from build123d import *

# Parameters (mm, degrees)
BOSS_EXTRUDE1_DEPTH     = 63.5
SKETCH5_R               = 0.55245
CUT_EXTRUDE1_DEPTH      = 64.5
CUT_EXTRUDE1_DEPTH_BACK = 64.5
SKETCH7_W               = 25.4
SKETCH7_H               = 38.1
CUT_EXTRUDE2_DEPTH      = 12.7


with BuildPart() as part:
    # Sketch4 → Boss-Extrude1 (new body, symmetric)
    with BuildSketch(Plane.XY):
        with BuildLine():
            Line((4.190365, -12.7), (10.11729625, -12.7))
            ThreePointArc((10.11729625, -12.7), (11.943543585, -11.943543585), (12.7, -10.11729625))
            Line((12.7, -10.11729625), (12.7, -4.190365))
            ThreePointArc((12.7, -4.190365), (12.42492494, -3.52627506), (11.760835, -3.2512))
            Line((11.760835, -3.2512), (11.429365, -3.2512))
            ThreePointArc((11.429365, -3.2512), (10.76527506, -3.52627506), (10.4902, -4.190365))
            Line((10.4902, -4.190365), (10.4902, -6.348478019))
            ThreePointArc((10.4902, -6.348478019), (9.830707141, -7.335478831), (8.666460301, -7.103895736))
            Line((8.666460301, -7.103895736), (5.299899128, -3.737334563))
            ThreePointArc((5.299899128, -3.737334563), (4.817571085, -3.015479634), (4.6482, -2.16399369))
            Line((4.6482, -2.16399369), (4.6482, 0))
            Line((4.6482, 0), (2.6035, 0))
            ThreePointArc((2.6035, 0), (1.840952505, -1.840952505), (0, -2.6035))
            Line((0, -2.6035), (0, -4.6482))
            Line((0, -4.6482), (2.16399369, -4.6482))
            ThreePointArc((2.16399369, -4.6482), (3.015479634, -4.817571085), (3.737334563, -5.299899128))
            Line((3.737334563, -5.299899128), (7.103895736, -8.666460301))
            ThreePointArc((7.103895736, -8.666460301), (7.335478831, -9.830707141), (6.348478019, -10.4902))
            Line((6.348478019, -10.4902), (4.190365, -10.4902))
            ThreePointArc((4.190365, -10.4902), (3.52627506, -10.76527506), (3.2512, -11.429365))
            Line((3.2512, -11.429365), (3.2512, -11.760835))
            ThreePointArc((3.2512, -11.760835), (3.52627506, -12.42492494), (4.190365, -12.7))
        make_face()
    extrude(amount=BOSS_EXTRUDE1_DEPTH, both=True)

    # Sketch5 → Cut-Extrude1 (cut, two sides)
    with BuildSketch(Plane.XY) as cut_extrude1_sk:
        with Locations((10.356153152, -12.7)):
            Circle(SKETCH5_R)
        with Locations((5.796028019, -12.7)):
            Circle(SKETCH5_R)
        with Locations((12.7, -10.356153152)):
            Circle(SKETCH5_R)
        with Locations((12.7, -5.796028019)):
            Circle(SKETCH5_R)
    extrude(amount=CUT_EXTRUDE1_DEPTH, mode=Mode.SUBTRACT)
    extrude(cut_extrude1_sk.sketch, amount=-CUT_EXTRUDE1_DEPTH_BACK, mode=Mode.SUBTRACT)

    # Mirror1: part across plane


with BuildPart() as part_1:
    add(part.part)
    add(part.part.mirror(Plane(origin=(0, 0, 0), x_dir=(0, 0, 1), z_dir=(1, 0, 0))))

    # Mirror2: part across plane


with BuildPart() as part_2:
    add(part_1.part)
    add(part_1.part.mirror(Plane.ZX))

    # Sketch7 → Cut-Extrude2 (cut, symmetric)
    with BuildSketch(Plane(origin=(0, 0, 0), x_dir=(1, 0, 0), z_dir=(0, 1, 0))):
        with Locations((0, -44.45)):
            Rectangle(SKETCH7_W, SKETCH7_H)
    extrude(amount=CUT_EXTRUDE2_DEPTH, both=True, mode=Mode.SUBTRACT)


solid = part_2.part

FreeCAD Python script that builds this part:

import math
import FreeCAD as App
import Part
import Sketcher
Q = App.Units.Quantity

doc = App.newDocument("Part")
body = doc.addObject("PartDesign::Body", "Body")

sketch1 = doc.addObject("Sketcher::SketchObject", "Sketch")
body.addObject(sketch1)
sketch1.AttachmentSupport = (doc.XY_Plane, [""])
sketch1.MapMode = "FlatFace"
sketch1.addGeometry([
    Part.LineSegment(App.Vector(4.19, -12.7, 0), App.Vector(10.12, -12.7, 0)),
    Part.ArcOfCircle(Part.Circle(App.Vector(10.12, -10.12, 0), App.Vector(0, 0, 1), 2.58), math.radians(-90), math.radians(0)),
    Part.LineSegment(App.Vector(12.7, -10.12, 0), App.Vector(12.7, -4.19, 0)),
    Part.ArcOfCircle(Part.Circle(App.Vector(11.76, -4.19, 0), App.Vector(0, 0, 1), 0.94), math.radians(0), math.radians(90)),
    Part.LineSegment(App.Vector(11.76, -3.25, 0), App.Vector(11.43, -3.25, 0)),
    Part.ArcOfCircle(Part.Circle(App.Vector(11.43, -4.19, 0), App.Vector(0, 0, 1), 0.94), math.radians(90), math.radians(180)),
    Part.LineSegment(App.Vector(10.49, -4.19, 0), App.Vector(10.49, -6.35, 0)),
    Part.ArcOfCircle(Part.Circle(App.Vector(9.42, -6.35, 0), App.Vector(0, 0, 1), 1.07), math.radians(-135), math.radians(0)),
    Part.LineSegment(App.Vector(8.67, -7.1, 0), App.Vector(5.3, -3.74, 0)),
    Part.ArcOfCircle(Part.Circle(App.Vector(6.87, -2.16, 0), App.Vector(0, 0, 1), 2.23), math.radians(-180), math.radians(-135)),
    Part.LineSegment(App.Vector(4.65, -2.16, 0), App.Vector(4.65, 0, 0)),
    Part.LineSegment(App.Vector(4.65, 0, 0), App.Vector(2.6, 0, 0)),
    Part.ArcOfCircle(Part.Circle(App.Vector(0, 0, 0), App.Vector(0, 0, 1), 2.6), math.radians(-90), math.radians(0)),
    Part.LineSegment(App.Vector(0, -2.6, 0), App.Vector(0, -4.65, 0)),
    Part.LineSegment(App.Vector(0, -4.65, 0), App.Vector(2.16, -4.65, 0)),
    Part.ArcOfCircle(Part.Circle(App.Vector(2.16, -6.87, 0), App.Vector(0, 0, 1), 2.23), math.radians(45), math.radians(90)),
    Part.LineSegment(App.Vector(3.74, -5.3, 0), App.Vector(7.1, -8.67, 0)),
    Part.ArcOfCircle(Part.Circle(App.Vector(6.35, -9.42, 0), App.Vector(0, 0, 1), 1.07), math.radians(-90), math.radians(45)),
    Part.LineSegment(App.Vector(6.35, -10.49, 0), App.Vector(4.19, -10.49, 0)),
    Part.ArcOfCircle(Part.Circle(App.Vector(4.19, -11.43, 0), App.Vector(0, 0, 1), 0.94), math.radians(90), math.radians(180)),
    Part.LineSegment(App.Vector(3.25, -11.43, 0), App.Vector(3.25, -11.76, 0)),
    Part.ArcOfCircle(Part.Circle(App.Vector(4.19, -11.76, 0), App.Vector(0, 0, 1), 0.94), math.radians(-180), math.radians(-90)),
], False)
sketch1.addConstraint([
    Sketcher.Constraint("Tangent", 0, 2, 1, 1),
    Sketcher.Constraint("Tangent", 1, 2, 2, 1),
    Sketcher.Constraint("Tangent", 2, 2, 3, 1),
    Sketcher.Constraint("Tangent", 3, 2, 4, 1),
    Sketcher.Constraint("Tangent", 4, 2, 5, 1),
    Sketcher.Constraint("Tangent", 5, 2, 6, 1),
    Sketcher.Constraint("Tangent", 6, 2, 7, 2),
    Sketcher.Constraint("Tangent", 7, 1, 8, 1),
    Sketcher.Constraint("Tangent", 8, 2, 9, 2),
    Sketcher.Constraint("Tangent", 9, 1, 10, 1),
    Sketcher.Constraint("Coincident", 10, 2, 11, 1),
    Sketcher.Constraint("Coincident", 11, 2, 12, 2),
    Sketcher.Constraint("Coincident", 12, 1, 13, 1),
    Sketcher.Constraint("Coincident", 13, 2, 14, 1),
    Sketcher.Constraint("Tangent", 14, 2, 15, 2),
    Sketcher.Constraint("Tangent", 15, 1, 16, 1),
    Sketcher.Constraint("Tangent", 16, 2, 17, 2),
    Sketcher.Constraint("Tangent", 17, 1, 18, 1),
    Sketcher.Constraint("Tangent", 18, 2, 19, 1),
    Sketcher.Constraint("Tangent", 19, 2, 20, 1),
    Sketcher.Constraint("Tangent", 20, 2, 21, 1),
    Sketcher.Constraint("Tangent", 21, 2, 0, 1),
    Sketcher.Constraint("Horizontal", 0),
    Sketcher.Constraint("Vertical", 2),
    Sketcher.Constraint("Horizontal", 4),
    Sketcher.Constraint("Vertical", 6),
    Sketcher.Constraint("Vertical", 10),
    Sketcher.Constraint("Horizontal", 11),
    Sketcher.Constraint("Vertical", 13),
    Sketcher.Constraint("Horizontal", 14),
    Sketcher.Constraint("Horizontal", 18),
    Sketcher.Constraint("Vertical", 20),
    Sketcher.Constraint("Coincident", 12, 3, -1, 1),
    Sketcher.Constraint("Equal", 3, 5),
    Sketcher.Constraint("Equal", 9, 15),
    Sketcher.Constraint("Equal", 7, 17),
    Sketcher.Constraint("Equal", 5, 19),
    Sketcher.Constraint("Equal", 19, 21),
    Sketcher.Constraint("PointOnObject", 10, 2, -1),
    Sketcher.Constraint("PointOnObject", 12, 1, -2),
    Sketcher.Constraint("Parallel", 8, 16),
    Sketcher.Constraint("Equal", 0, 2),
    Sketcher.Constraint("Equal", 18, 6),
    Sketcher.Constraint("Equal", 14, 10),
    Sketcher.Constraint("Equal", 11, 13),
    Sketcher.Constraint("Equal", 4, 20),
    Sketcher.Constraint("Equal", 8, 16),
    Sketcher.Constraint("DistanceY", 0, 2, -1, 1, Q("0.5 in")),
    Sketcher.Constraint("Radius", 9, Q("0.0876 in")),
    Sketcher.Constraint("Radius", 12, Q("0.1025 in")),
    Sketcher.Constraint("DistanceX", 9, 1, 5, 2, Q("0.23 in")),
    Sketcher.Constraint("DistanceX", 11, 2, 11, 1, Q("0.0805 in")),
    Sketcher.Constraint("DistanceY", 3, 2, -1, 1, Q("0.128 in")),
    Sketcher.Constraint("Radius", 7, Q("1.068322 mm")),
    Sketcher.Constraint("DistanceX", 17, 3, 7, 3, Q("0.121 in")),
    Sketcher.Constraint("Radius", 1, Q("2.582704 mm")),
    Sketcher.Constraint("Radius", 3, Q("0.939165 mm")),
])
pad1 = doc.addObject("PartDesign::Pad", "Pad")
body.addObject(pad1)
pad1.Profile = sketch1
pad1.Length = Q("5 in")
pad1.Midplane = True

sketch2 = doc.addObject("Sketcher::SketchObject", "Sketch001")
body.addObject(sketch2)
sketch2.AttachmentSupport = (doc.XY_Plane, [""])
sketch2.MapMode = "FlatFace"
sketch2.addGeometry([
    Part.Circle(App.Vector(10.4, -12.7, 0), App.Vector(0, 0, 1), 0.6),
    Part.Circle(App.Vector(5.8, -12.7, 0), App.Vector(0, 0, 1), 0.6),
    Part.Circle(App.Vector(12.7, -10.4, 0), App.Vector(0, 0, 1), 0.6),
    Part.Circle(App.Vector(12.7, -5.8, 0), App.Vector(0, 0, 1), 0.6),
], False)
sketch2.addConstraint([
    Sketcher.Constraint("Equal", 0, 1),
    Sketcher.Constraint("Equal", 1, 2),
    Sketcher.Constraint("Equal", 2, 3),
    Sketcher.Constraint("Horizontal", 0, 3, 1, 3),
    Sketcher.Constraint("Vertical", 2, 3, 3, 3),
    Sketcher.Constraint("Diameter", 0, Q("0.0435 in")),
    Sketcher.Constraint("DistanceY", 0, 3, -1, 1, Q("0.5 in")),
    Sketcher.Constraint("DistanceX", -1, 1, 2, 3, Q("0.5 in")),
    Sketcher.Constraint("DistanceX", -1, 1, 1, 3, Q("5.796028 mm")),
    Sketcher.Constraint("DistanceY", 3, 3, -1, 1, Q("5.796028 mm")),
    Sketcher.Constraint("DistanceX", -1, 1, 0, 3, Q("10.356153 mm")),
    Sketcher.Constraint("DistanceY", 2, 3, -1, 1, Q("10.356153 mm")),
])
pocket1 = doc.addObject("PartDesign::Pocket", "Pocket")
body.addObject(pocket1)
pocket1.Profile = sketch2
pocket1.Type = "ThroughAll"
pocket1.Midplane = True
body2 = doc.addObject("PartDesign::Body", "Body001")
doc.recompute()

body2.BaseFeature = body
doc.recompute()

mirroring = doc.addObject("Part::Mirroring", "Mirroring")
mirroring.Source = body
mirroring.Base = App.Vector(0, 0, 0)
mirroring.Normal = App.Vector(1, 0, 0)
body3 = doc.addObject("PartDesign::Body", "Body002")
body3.BaseFeature = mirroring
boolean = doc.addObject("PartDesign::Boolean", "Boolean")
body2.addObject(boolean)
boolean.Type = "Fuse"
boolean.addObjects([body3])
doc.recompute()
body4 = doc.addObject("PartDesign::Body", "Body003")
doc.recompute()

body4.BaseFeature = body2
doc.recompute()

mirroring2 = doc.addObject("Part::Mirroring", "Mirroring001")
mirroring2.Source = body2
mirroring2.Base = App.Vector(0, 0, 0)
mirroring2.Normal = App.Vector(0, 1, 0)
body5 = doc.addObject("PartDesign::Body", "Body004")
body5.BaseFeature = mirroring2
boolean2 = doc.addObject("PartDesign::Boolean", "Boolean001")
body4.addObject(boolean2)
boolean2.Type = "Fuse"
boolean2.addObjects([body5])
doc.recompute()

sketch3 = doc.addObject("Sketcher::SketchObject", "Sketch002")
body4.addObject(sketch3)
sketch3.AttachmentSupport = (doc.getObject("XZ_Plane003"), [""])
sketch3.MapMode = "FlatFace"
sketch3.addGeometry([
    Part.LineSegment(App.Vector(-13, 25, 0), App.Vector(-13, 64, 0)),
    Part.LineSegment(App.Vector(-13, 64, 0), App.Vector(13, 64, 0)),
    Part.LineSegment(App.Vector(13, 64, 0), App.Vector(13, 25, 0)),
    Part.LineSegment(App.Vector(13, 25, 0), App.Vector(-13, 25, 0)),
], False)
sketch3.addConstraint([
    Sketcher.Constraint("Coincident", 0, 2, 1, 1),
    Sketcher.Constraint("Coincident", 1, 2, 2, 1),
    Sketcher.Constraint("Coincident", 2, 2, 3, 1),
    Sketcher.Constraint("Coincident", 3, 2, 0, 1),
    Sketcher.Constraint("Vertical", 0),
    Sketcher.Constraint("Horizontal", 1),
    Sketcher.Constraint("Vertical", 2),
    Sketcher.Constraint("Horizontal", 3),
    Sketcher.Constraint("DistanceX", 1, 1, 1, 2, Q("1 in")),
    Sketcher.Constraint("DistanceY", 0, 1, 0, 2, Q("1.5 in")),
    Sketcher.Constraint("DistanceY", -1, 1, 2, 2, Q("1 in")),
    Sketcher.Constraint("DistanceX", 0, 2, -1, 1, Q("0.5 in")),
])
pocket2 = doc.addObject("PartDesign::Pocket", "Pocket001")
body4.addObject(pocket2)
pocket2.Profile = sketch3
pocket2.Length = Q("1 in")
pocket2.Midplane = True
mirroring.Visibility = False
mirroring2.Visibility = False

doc.recompute()
